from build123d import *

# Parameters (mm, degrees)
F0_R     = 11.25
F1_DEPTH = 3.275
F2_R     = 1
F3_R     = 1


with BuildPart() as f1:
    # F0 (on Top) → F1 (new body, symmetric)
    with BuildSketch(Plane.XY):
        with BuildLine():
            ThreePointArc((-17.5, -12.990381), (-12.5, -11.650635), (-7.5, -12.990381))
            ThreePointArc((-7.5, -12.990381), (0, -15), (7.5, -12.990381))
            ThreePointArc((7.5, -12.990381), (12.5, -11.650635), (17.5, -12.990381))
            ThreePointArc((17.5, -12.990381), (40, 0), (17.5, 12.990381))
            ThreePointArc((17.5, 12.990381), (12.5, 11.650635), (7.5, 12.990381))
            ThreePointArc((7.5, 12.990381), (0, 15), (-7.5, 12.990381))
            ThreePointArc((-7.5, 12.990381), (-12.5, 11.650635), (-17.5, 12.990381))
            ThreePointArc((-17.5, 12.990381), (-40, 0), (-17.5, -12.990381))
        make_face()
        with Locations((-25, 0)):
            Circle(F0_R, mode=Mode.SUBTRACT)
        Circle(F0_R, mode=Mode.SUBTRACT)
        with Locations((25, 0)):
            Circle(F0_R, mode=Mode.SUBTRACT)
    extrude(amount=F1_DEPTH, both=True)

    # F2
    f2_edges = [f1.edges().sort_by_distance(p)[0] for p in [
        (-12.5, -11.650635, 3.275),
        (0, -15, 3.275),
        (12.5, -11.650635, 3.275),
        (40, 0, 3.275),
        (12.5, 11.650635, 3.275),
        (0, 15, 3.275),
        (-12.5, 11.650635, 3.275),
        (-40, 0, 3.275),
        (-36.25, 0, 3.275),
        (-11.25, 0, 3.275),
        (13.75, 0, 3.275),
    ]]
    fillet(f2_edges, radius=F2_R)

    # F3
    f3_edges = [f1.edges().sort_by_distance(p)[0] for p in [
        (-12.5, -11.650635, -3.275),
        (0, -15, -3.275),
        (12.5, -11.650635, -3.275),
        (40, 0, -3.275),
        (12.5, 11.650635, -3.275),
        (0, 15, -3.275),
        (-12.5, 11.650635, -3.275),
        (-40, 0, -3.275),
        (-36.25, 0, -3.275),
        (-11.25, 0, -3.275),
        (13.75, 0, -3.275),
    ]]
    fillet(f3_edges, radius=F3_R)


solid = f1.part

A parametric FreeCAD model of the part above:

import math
import FreeCAD as App
import Part
import Sketcher

V = App.Vector
Q = App.Units.Quantity


def edges_at(feature, points):
    """Names of the edges that pass closest to the given points."""
    edges = feature.Shape.Edges
    near = lambda p: min(range(len(edges)), key=lambda i: edges[i].distToShape(Part.Vertex(*p))[0])
    return sorted({f"Edge{near(p) + 1}" for p in points})

doc = App.newDocument("Part")
body = doc.addObject("PartDesign::Body", "Body")

# Sketch on XY plane
sketch1 = doc.addObject("Sketcher::SketchObject", "Sketch")
body.addObject(sketch1)
sketch1.AttachmentSupport = (doc.XY_Plane, [""])
sketch1.MapMode = "FlatFace"
sketch1.addGeometry([
    Part.ArcOfCircle(Part.Circle(V(-12, -22, 0), V(0, 0, 1), 10), math.radians(60), math.radians(120)),  # 0
    Part.ArcOfCircle(Part.Circle(V(0, 0, 0), V(0, 0, 1), 15), math.radians(-120), math.radians(-60)),  # 1
    Part.ArcOfCircle(Part.Circle(V(12, -22, 0), V(0, 0, 1), 10), math.radians(60), math.radians(120)),  # 2
    Part.ArcOfCircle(Part.Circle(V(25, 0, 0), V(0, 0, 1), 15), math.radians(-120), math.radians(120)),  # 3
    Part.ArcOfCircle(Part.Circle(V(12, 22, 0), V(0, 0, 1), 10), math.radians(-120), math.radians(-60)),  # 4
    Part.ArcOfCircle(Part.Circle(V(0, 0, 0), V(0, 0, 1), 15), math.radians(60), math.radians(120)),  # 5
    Part.ArcOfCircle(Part.Circle(V(-12, 22, 0), V(0, 0, 1), 10), math.radians(-120), math.radians(-60)),  # 6
    Part.ArcOfCircle(Part.Circle(V(-25, 0, 0), V(0, 0, 1), 15), math.radians(60), math.radians(300)),  # 7
    Part.Circle(V(-25, 0, 0), V(0, 0, 1), 11),  # 8
    Part.Circle(V(0, 0, 0), V(0, 0, 1), 11),  # 9
    Part.Circle(V(25, 0, 0), V(0, 0, 1), 11),  # 10
], False)
sketch1.addConstraint([
    Sketcher.Constraint("Tangent", 0, 1, 1, 1),
    Sketcher.Constraint("Tangent", 1, 2, 2, 2),
    Sketcher.Constraint("Tangent", 2, 1, 3, 1),
    Sketcher.Constraint("Tangent", 3, 2, 4, 2),
    Sketcher.Constraint("Tangent", 4, 1, 5, 1),
    Sketcher.Constraint("Tangent", 5, 2, 6, 2),
    Sketcher.Constraint("Tangent", 6, 1, 7, 1),
    Sketcher.Constraint("Tangent", 7, 2, 0, 2),
    Sketcher.Constraint("Coincident", 1, 3, -1, 1),
    Sketcher.Constraint("Coincident", 5, 3, -1, 1),
    Sketcher.Constraint("Coincident", 9, 3, -1, 1),
    Sketcher.Constraint("Coincident", 8, 3, 7, 3),
    Sketcher.Constraint("Coincident", 10, 3, 3, 3),
    Sketcher.Constraint("Equal", 0, 2),
    Sketcher.Constraint("Equal", 1, 3),
    Sketcher.Constraint("Equal", 2, 4),
    Sketcher.Constraint("Equal", 3, 5),
    Sketcher.Constraint("Equal", 4, 6),
    Sketcher.Constraint("Equal", 5, 7),
    Sketcher.Constraint("Equal", 8, 9),
    Sketcher.Constraint("Equal", 9, 10),
    Sketcher.Constraint("Symmetric", 3, 3, 7, 3, -1, 1),
    Sketcher.Constraint("PointOnObject", 3, 3, -1),
    Sketcher.Constraint("Radius", 0, Q("10 mm")),
    Sketcher.Constraint("Radius", 1, Q("15 mm")),
    Sketcher.Constraint("Diameter", 8, Q("22.5 mm")),
    Sketcher.Constraint("DistanceX", -1, 1, 3, 3, Q("25 mm")),
])
pad1 = doc.addObject("PartDesign::Pad", "Pad")
body.addObject(pad1)
pad1.Profile = sketch1
pad1.Length = 6.55
pad1.Midplane = True
doc.recompute()

fillet = doc.addObject("PartDesign::Fillet", "Fillet")
body.addObject(fillet)
fillet.Base = (pad1, edges_at(pad1, [
    (-12.5, -11.651, 3.275),
    (0, -15, 3.275),
    (12.5, -11.651, 3.275),
    (40, 0, 3.275),
    (12.5, 11.651, 3.275),
    (0, 15, 3.275),
    (-12.5, 11.651, 3.275),
    (-40, 0, 3.275),
    (-36.25, 0, 3.275),
    (-11.25, 0, 3.275),
    (13.75, 0, 3.275),
]))
fillet.Radius = 1
doc.recompute()

fillet2 = doc.addObject("PartDesign::Fillet", "Fillet001")
body.addObject(fillet2)
fillet2.Base = (fillet, edges_at(fillet, [
    (-12.5, -11.651, -3.275),
    (0, -15, -3.275),
    (12.5, -11.651, -3.275),
    (40, 0, -3.275),
    (12.5, 11.651, -3.275),
    (0, 15, -3.275),
    (-12.5, 11.651, -3.275),
    (-40, 0, -3.275),
    (-36.25, 0, -3.275),
    (-11.25, 0, -3.275),
    (13.75, 0, -3.275),
]))
fillet2.Radius = 1

doc.recompute()
